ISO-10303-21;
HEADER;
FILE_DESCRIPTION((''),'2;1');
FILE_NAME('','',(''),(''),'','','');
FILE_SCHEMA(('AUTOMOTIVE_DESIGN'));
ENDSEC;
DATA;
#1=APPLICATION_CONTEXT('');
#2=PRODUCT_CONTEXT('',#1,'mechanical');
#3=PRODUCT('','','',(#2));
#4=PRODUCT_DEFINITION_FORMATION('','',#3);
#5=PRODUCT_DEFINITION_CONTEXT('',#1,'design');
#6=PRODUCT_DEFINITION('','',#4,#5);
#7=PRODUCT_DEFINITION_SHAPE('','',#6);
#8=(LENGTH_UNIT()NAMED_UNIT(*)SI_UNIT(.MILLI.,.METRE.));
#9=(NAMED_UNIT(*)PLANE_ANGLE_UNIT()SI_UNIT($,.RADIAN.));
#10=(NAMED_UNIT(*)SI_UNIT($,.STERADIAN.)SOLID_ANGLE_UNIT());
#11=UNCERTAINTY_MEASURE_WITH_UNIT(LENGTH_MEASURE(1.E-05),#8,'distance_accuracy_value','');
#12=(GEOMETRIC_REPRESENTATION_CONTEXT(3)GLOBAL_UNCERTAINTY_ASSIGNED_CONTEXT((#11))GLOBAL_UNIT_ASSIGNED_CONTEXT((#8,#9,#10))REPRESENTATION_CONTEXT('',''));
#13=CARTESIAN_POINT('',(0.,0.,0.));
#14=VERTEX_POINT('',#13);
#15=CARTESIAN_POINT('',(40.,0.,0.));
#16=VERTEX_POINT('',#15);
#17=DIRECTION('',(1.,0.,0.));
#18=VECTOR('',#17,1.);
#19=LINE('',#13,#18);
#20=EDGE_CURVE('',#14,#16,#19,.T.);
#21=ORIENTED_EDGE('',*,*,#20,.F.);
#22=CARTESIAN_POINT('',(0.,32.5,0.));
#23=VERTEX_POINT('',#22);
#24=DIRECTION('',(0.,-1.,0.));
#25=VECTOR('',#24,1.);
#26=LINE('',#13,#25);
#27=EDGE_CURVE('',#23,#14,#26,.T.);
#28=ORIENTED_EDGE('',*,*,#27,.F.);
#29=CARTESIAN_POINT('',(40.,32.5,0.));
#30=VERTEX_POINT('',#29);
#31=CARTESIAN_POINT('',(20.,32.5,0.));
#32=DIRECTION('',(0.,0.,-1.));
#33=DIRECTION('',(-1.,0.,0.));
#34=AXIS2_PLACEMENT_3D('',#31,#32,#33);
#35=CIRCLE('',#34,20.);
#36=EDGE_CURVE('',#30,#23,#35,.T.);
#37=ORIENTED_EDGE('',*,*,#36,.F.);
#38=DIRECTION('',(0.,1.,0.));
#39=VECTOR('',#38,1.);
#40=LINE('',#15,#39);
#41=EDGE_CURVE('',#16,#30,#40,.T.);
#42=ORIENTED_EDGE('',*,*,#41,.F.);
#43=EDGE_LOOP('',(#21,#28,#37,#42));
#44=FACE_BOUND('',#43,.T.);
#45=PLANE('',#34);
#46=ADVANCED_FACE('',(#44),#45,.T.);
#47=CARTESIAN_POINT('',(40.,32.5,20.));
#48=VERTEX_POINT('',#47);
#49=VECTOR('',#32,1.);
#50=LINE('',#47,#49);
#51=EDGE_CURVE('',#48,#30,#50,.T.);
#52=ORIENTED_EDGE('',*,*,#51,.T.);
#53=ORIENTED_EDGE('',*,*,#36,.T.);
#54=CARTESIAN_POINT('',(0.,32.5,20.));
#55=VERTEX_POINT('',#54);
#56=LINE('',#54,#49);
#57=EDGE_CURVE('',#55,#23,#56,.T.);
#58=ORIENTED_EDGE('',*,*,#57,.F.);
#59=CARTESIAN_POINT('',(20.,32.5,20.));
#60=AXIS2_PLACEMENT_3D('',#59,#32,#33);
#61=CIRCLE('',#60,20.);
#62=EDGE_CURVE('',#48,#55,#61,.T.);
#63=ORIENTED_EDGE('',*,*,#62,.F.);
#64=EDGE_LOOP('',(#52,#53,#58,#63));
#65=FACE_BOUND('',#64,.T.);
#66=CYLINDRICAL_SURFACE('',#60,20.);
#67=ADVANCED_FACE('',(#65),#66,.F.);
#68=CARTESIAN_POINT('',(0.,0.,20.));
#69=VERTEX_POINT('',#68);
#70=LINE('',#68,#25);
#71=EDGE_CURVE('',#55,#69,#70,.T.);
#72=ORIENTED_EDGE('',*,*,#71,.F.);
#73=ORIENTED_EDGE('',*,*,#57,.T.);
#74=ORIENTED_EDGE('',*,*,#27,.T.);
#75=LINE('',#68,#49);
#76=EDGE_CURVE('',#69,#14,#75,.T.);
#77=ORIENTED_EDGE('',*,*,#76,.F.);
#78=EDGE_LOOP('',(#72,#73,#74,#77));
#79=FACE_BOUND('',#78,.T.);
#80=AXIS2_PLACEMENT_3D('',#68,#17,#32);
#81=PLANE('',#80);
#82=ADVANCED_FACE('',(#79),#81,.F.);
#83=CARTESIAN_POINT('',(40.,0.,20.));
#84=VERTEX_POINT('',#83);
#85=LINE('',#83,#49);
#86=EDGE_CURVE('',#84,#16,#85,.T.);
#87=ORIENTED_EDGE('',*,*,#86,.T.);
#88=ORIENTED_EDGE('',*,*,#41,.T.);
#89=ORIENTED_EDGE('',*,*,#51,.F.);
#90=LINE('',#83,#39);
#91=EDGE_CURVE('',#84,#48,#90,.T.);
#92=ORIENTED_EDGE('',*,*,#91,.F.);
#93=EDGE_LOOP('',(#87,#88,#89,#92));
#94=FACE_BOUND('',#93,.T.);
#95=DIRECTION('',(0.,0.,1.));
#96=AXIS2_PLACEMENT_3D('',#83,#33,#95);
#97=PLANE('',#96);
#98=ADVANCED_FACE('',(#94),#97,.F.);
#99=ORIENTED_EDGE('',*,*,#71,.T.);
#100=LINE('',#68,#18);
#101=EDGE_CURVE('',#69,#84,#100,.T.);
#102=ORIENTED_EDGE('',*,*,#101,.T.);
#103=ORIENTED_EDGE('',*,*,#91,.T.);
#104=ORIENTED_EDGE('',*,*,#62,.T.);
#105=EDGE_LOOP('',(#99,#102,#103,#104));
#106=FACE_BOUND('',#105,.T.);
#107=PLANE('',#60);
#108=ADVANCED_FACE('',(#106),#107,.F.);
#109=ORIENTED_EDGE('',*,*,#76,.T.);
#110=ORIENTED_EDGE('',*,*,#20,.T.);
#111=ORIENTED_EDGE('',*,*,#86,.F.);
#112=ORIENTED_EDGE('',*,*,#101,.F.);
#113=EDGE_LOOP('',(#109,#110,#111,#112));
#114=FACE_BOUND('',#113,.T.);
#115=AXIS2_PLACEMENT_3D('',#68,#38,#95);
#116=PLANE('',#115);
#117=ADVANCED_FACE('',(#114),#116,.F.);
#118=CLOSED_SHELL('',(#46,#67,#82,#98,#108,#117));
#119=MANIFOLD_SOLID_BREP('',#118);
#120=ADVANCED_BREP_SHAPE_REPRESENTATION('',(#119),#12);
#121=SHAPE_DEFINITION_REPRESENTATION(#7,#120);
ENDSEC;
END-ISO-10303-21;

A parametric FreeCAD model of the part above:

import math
import FreeCAD as App
import Part
import Sketcher

V = App.Vector

doc = App.newDocument("Part")
body = doc.addObject("PartDesign::Body", "Body")

# Sketch on XY plane
sketch1 = body.newObject("Sketcher::SketchObject", "Sketch")
sketch1.AttachmentSupport = (doc.getObject("XY_Plane"), [""])
sketch1.MapMode = "FlatFace"
sketch1.addGeometry(Part.LineSegment(V(0, 0, 0), V(40, 0, 0)), False)
sketch1.addGeometry(Part.LineSegment(V(40, 0, 0), V(40, 32, 0)), False)
sketch1.addGeometry(Part.ArcOfCircle(Part.Circle(V(20, 32, 0), V(0, 0, 1), 20), math.radians(180), math.radians(360)), False)
sketch1.addGeometry(Part.LineSegment(V(0, 32, 0), V(0, 0, 0)), False)
sketch1.addConstraint(Sketcher.Constraint("Coincident", 0, 2, 1, 1))
sketch1.addConstraint(Sketcher.Constraint("Tangent", 1, 2, 2, 2))
sketch1.addConstraint(Sketcher.Constraint("Tangent", 2, 1, 3, 1))
sketch1.addConstraint(Sketcher.Constraint("Coincident", 3, 2, 0, 1))
sketch1.addConstraint(Sketcher.Constraint("Horizontal", 0))
sketch1.addConstraint(Sketcher.Constraint("Vertical", 1))
sketch1.addConstraint(Sketcher.Constraint("Vertical", 3))
sketch1.addConstraint(Sketcher.Constraint("Coincident", 3, 2, -1, 1))
sketch1.addConstraint(Sketcher.Constraint("Radius", 2, 20.0))
sketch1.addConstraint(Sketcher.Constraint("DistanceY", 1, 1, 1, 2, 32.5))
pad1 = body.newObject("PartDesign::Pad", "Pad")
pad1.Profile = sketch1
pad1.Length = 20

doc.recompute()
